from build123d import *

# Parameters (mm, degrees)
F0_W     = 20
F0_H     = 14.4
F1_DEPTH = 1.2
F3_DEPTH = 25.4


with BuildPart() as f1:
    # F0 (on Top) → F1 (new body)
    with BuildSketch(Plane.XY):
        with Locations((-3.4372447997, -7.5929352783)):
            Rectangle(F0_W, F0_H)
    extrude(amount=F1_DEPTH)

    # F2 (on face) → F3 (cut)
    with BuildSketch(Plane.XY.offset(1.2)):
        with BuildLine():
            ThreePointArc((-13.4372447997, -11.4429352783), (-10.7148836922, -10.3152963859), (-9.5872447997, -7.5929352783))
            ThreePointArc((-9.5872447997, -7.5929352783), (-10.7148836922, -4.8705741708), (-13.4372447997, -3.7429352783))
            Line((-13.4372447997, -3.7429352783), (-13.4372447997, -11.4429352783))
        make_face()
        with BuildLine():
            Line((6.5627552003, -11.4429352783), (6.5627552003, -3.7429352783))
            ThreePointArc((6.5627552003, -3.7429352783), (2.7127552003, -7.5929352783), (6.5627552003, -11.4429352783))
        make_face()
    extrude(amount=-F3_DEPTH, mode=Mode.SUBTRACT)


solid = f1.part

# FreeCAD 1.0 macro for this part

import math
import FreeCAD as App
import Part
import Sketcher
Q = App.Units.Quantity

doc = App.newDocument("Part")
body = doc.addObject("PartDesign::Body", "Body")

# Sketch on XY plane
sketch1 = body.newObject("Sketcher::SketchObject", "Sketch")
sketch1.AttachmentSupport = (doc.getObject("XY_Plane"), [""])
sketch1.MapMode = "FlatFace"
sketch1.addGeometry([
    Part.LineSegment(App.Vector(-13.437245, -0.392935, 0), App.Vector(-13.437245, -14.792935, 0)),
    Part.LineSegment(App.Vector(-13.437245, -14.792935, 0), App.Vector(6.562755, -14.792935, 0)),
    Part.LineSegment(App.Vector(6.562755, -14.792935, 0), App.Vector(6.562755, -0.392935, 0)),
    Part.LineSegment(App.Vector(6.562755, -0.392935, 0), App.Vector(-13.437245, -0.392935, 0)),
], False)
sketch1.addConstraint([
    Sketcher.Constraint("Coincident", 0, 2, 1, 1),
    Sketcher.Constraint("Coincident", 1, 2, 2, 1),
    Sketcher.Constraint("Coincident", 2, 2, 3, 1),
    Sketcher.Constraint("Coincident", 3, 2, 0, 1),
    Sketcher.Constraint("Vertical", 0),
    Sketcher.Constraint("Horizontal", 1),
    Sketcher.Constraint("Vertical", 2),
    Sketcher.Constraint("Horizontal", 3),
    Sketcher.Constraint("DistanceX", 1, 1, 1, 2, Q("20 mm")),
    Sketcher.Constraint("DistanceY", 0, 2, 0, 1, Q("14.4 mm")),
    Sketcher.Constraint("DistanceX", 0, 2, -1, 1, Q("13.437245 mm")),
    Sketcher.Constraint("DistanceY", 0, 2, -1, 1, Q("14.792935 mm")),
])
pad1 = body.newObject("PartDesign::Pad", "Pad")
pad1.Profile = sketch1
pad1.Length = 1.2

# Sketch on XY plane
sketch2 = body.newObject("Sketcher::SketchObject", "Sketch001")
sketch2.AttachmentSupport = (doc.getObject("XY_Plane"), [""])
sketch2.MapMode = "FlatFace"
sketch2.AttachmentOffset = App.Placement(App.Vector(0, 0, 1.2), App.Rotation())
sketch2.addGeometry([
    Part.ArcOfCircle(Part.Circle(App.Vector(-13.437245, -7.592935, 0), App.Vector(0, 0, 1), 3.85), math.radians(-90), math.radians(0)),  # 0
    Part.ArcOfCircle(Part.Circle(App.Vector(-13.437245, -7.592935, 0), App.Vector(0, 0, 1), 3.85), math.radians(0), math.radians(90)),  # 1
    Part.LineSegment(App.Vector(-13.437245, -3.742935, 0), App.Vector(-13.437245, -11.442935, 0)),  # 2
    Part.LineSegment(App.Vector(6.562755, -11.442935, 0), App.Vector(6.562755, -3.742935, 0)),  # 3
    Part.ArcOfCircle(Part.Circle(App.Vector(6.562755, -7.592935, 0), App.Vector(0, 0, 1), 3.85), math.radians(90), math.radians(270)),  # 4
], False)
sketch2.addConstraint([
    Sketcher.Constraint("Tangent", 0, 2, 1, 1),
    Sketcher.Constraint("Coincident", 1, 2, 2, 1),
    Sketcher.Constraint("Coincident", 2, 2, 0, 1),
    Sketcher.Constraint("Coincident", 3, 1, 4, 2),
    Sketcher.Constraint("Coincident", 4, 1, 3, 2),
    Sketcher.Constraint("Vertical", 2),
    Sketcher.Constraint("Vertical", 3),
    Sketcher.Constraint("Equal", 0, 1),
    Sketcher.Constraint("Equal", 1, 4),
    Sketcher.Constraint("Horizontal", 1, 3, 4, 3),
    Sketcher.Constraint("Horizontal", 4, 3, 0, 2),
    Sketcher.Constraint("Vertical", 0, 3, 1, 2),
    Sketcher.Constraint("Vertical", 4, 3, 3, 1),
    Sketcher.Constraint("Radius", 0, Q("3.85 mm")),
    Sketcher.Constraint("DistanceX", 0, 3, 4, 3, Q("20 mm")),
    Sketcher.Constraint("DistanceX", 0, 3, -1, 1, Q("13.437245 mm")),
    Sketcher.Constraint("DistanceY", 0, 3, -1, 1, Q("7.592935 mm")),
])
pocket1 = body.newObject("PartDesign::Pocket", "Pocket")
pocket1.Profile = sketch2
pocket1.Length = 25.4

doc.recompute()
